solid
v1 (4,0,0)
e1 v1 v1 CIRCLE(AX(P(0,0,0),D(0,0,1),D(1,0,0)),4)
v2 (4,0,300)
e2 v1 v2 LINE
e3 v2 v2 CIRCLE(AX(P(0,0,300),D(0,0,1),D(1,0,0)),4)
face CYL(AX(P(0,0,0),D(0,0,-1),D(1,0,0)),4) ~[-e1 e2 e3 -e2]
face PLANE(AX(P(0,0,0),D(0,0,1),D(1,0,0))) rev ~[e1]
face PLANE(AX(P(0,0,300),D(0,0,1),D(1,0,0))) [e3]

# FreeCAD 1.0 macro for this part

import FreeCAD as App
import Part
import Sketcher

doc = App.newDocument("Part")
body = doc.addObject("PartDesign::Body", "Body")

sketch1 = doc.addObject("Sketcher::SketchObject", "Sketch")
body.addObject(sketch1)
sketch1.AttachmentSupport = (doc.XY_Plane, [""])
sketch1.MapMode = "FlatFace"
sketch1.addGeometry(Part.Circle(App.Vector(0, 0, 0), App.Vector(0, 0, 1), 4), False)
sketch1.addConstraint([
    Sketcher.Constraint("Coincident", 0, 3, -1, 1),
    Sketcher.Constraint("Diameter", 0, 8.0),
])
pad1 = doc.addObject("PartDesign::Pad", "Pad")
body.addObject(pad1)
pad1.Profile = sketch1
pad1.Length = 300

doc.recompute()
